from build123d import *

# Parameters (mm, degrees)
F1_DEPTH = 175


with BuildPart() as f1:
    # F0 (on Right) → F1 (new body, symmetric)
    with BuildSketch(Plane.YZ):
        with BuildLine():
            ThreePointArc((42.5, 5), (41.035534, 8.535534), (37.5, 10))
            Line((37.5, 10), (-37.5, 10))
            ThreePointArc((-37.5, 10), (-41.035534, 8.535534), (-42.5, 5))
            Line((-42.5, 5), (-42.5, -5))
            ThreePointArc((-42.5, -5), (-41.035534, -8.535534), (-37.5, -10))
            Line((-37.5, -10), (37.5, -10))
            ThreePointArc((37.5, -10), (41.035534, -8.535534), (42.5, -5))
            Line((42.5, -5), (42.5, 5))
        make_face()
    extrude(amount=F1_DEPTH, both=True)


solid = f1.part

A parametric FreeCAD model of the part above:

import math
import FreeCAD as App
import Part
import Sketcher
from FreeCAD import Vector

doc = App.newDocument("Part")
body = doc.addObject("PartDesign::Body", "Body")

sketch1 = body.newObject("Sketcher::SketchObject", "Sketch")
sketch1.AttachmentSupport = (doc.getObject("YZ_Plane"), [""])
sketch1.MapMode = "FlatFace"
sketch1.addGeometry([
    Part.ArcOfCircle(Part.Circle(Vector(37.5, 5, 0), Vector(0, 0, 1), 5), math.radians(0), math.radians(90)),
    Part.LineSegment(Vector(37.5, 10, 0), Vector(-37.5, 10, 0)),
    Part.ArcOfCircle(Part.Circle(Vector(-37.5, 5, 0), Vector(0, 0, 1), 5), math.radians(90), math.radians(180)),
    Part.LineSegment(Vector(-42.5, 5, 0), Vector(-42.5, -5, 0)),
    Part.ArcOfCircle(Part.Circle(Vector(-37.5, -5, 0), Vector(0, 0, 1), 5), math.radians(180), math.radians(270)),
    Part.LineSegment(Vector(-37.5, -10, 0), Vector(37.5, -10, 0)),
    Part.ArcOfCircle(Part.Circle(Vector(37.5, -5, 0), Vector(0, 0, 1), 5), math.radians(-90), math.radians(0)),
    Part.LineSegment(Vector(42.5, -5, 0), Vector(42.5, 5, 0)),
], False)
sketch1.addConstraint([
    Sketcher.Constraint("Tangent", 0, 2, 1, 1),
    Sketcher.Constraint("Tangent", 1, 2, 2, 1),
    Sketcher.Constraint("Tangent", 2, 2, 3, 1),
    Sketcher.Constraint("Tangent", 3, 2, 4, 1),
    Sketcher.Constraint("Tangent", 4, 2, 5, 1),
    Sketcher.Constraint("Tangent", 5, 2, 6, 1),
    Sketcher.Constraint("Tangent", 6, 2, 7, 1),
    Sketcher.Constraint("Tangent", 7, 2, 0, 1),
    Sketcher.Constraint("Horizontal", 1),
    Sketcher.Constraint("Vertical", 3),
    Sketcher.Constraint("Horizontal", 5),
    Sketcher.Constraint("Vertical", 7),
    Sketcher.Constraint("Equal", 0, 2),
    Sketcher.Constraint("Equal", 2, 4),
    Sketcher.Constraint("Equal", 4, 6),
    Sketcher.Constraint("Symmetric", 0, 3, 4, 3, -1, 1),
    Sketcher.Constraint("Radius", 0, 5.0),
    Sketcher.Constraint("DistanceX", 1, 2, 1, 1, 75.0),
    Sketcher.Constraint("DistanceY", 3, 2, 3, 1, 10.0),
])
pad1 = body.newObject("PartDesign::Pad", "Pad")
pad1.Profile = sketch1
pad1.Length = 350
pad1.Midplane = True

doc.recompute()
